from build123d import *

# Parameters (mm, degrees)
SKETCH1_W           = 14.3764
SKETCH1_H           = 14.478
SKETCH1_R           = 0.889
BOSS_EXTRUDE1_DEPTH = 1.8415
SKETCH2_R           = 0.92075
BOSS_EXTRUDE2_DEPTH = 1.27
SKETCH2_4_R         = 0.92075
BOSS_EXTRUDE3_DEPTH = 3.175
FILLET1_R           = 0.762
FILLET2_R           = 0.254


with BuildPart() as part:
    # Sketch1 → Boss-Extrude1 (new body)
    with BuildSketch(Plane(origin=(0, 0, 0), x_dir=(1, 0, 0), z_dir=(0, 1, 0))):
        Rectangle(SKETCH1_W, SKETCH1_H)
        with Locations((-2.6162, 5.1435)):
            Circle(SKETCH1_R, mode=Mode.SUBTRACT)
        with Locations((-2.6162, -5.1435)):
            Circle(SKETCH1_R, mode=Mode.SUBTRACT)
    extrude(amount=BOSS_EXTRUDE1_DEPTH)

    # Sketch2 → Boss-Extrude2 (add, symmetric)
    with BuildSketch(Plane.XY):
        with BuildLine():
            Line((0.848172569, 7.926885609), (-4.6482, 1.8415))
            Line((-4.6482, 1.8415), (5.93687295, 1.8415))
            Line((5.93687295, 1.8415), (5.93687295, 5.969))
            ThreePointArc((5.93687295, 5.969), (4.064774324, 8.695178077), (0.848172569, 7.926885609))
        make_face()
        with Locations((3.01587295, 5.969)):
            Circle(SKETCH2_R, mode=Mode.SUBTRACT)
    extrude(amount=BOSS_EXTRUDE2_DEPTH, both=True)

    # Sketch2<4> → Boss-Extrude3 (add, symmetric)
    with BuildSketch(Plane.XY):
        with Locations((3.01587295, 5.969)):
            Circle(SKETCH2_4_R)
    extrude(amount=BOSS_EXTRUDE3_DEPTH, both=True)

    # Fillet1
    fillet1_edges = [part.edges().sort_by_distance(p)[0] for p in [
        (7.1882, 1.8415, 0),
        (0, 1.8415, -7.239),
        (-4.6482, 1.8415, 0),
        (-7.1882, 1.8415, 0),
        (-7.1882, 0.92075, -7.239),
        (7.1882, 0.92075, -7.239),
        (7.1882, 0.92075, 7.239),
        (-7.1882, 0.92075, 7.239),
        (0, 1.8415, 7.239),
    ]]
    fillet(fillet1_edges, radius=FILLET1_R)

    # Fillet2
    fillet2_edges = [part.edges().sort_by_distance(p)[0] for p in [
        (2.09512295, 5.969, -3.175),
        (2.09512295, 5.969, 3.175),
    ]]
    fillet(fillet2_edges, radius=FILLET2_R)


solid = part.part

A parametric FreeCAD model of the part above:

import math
import FreeCAD as App
import Part
import Sketcher

V = App.Vector
Q = App.Units.Quantity


def edges_at(feature, points):
    """Names of the edges that pass closest to the given points."""
    edges = feature.Shape.Edges
    near = lambda p: min(range(len(edges)), key=lambda i: edges[i].distToShape(Part.Vertex(*p))[0])
    return sorted({f"Edge{near(p) + 1}" for p in points})


def add_polygon(sketch, points):
    """Adds a closed chain of lines whose ends are joined by coincident constraints."""
    first, n = sketch.GeometryCount, len(points)
    for a, b in zip(points, points[1:] + points[:1]):
        sketch.addGeometry(Part.LineSegment(App.Vector(*a, 0), App.Vector(*b, 0)), False)
    for i in range(n):
        sketch.addConstraint(Sketcher.Constraint("Coincident", first + i, 2, first + (i + 1) % n, 1))

doc = App.newDocument("Part")
params = doc.addObject("Spreadsheet::Sheet", "Params")
for row, (alias, value) in enumerate([
    ("sketch1_diameter", "0.07 in"),
    ("sketch1_height", "0.57 in"),
    ("sketch1_width", "0.566 in"),
    ("pad1_length", "0.0725 in"),
    ("sketch2_radius", "0.115 in"),
    ("pad2_length", "0.1 in"),
    ("pad3_length", "0.25 in"),
    ("fillet_radius", "0.03 in"),
    ("fillet2_radius", "0.01 in"),
], start=1):
    params.set(f"A{row}", alias)
    params.set(f"B{row}", "=" + value)
    params.setAlias(f"B{row}", alias)

body = doc.addObject("PartDesign::Body", "Body")

# Sketch on XZ plane
sketch1 = doc.addObject("Sketcher::SketchObject", "Sketch")
body.addObject(sketch1)
sketch1.AttachmentSupport = (doc.XZ_Plane, [""])
sketch1.MapMode = "FlatFace"
add_polygon(sketch1, [(-7.2, -7.2), (-7.2, 7.2), (7.2, 7.2), (7.2, -7.2)])  # lines 0-3
sketch1.addGeometry(Part.Circle(V(-2.6, 5.1, 0), V(0, 0, 1), 0.9), False)  # 4
sketch1.addGeometry(Part.Circle(V(-2.6, -5.1, 0), V(0, 0, 1), 0.9), False)  # 5
sketch1.addConstraint([
    Sketcher.Constraint("Vertical", 0),
    Sketcher.Constraint("Horizontal", 1),
    Sketcher.Constraint("Vertical", 2),
    Sketcher.Constraint("Horizontal", 3),
    Sketcher.Constraint("Equal", 4, 5),
    Sketcher.Constraint("Symmetric", 0, 2, 2, 2, -1, 1),
    Sketcher.Constraint("Symmetric", 4, 3, 5, 3, -1),
    Sketcher.Constraint("Diameter", 4, Q("0.07 in")),
    Sketcher.Constraint("DistanceY", 0, 1, 0, 2, Q("0.57 in")),
    Sketcher.Constraint("DistanceX", 1, 1, 1, 2, Q("0.566 in")),
    Sketcher.Constraint("DistanceX", 0, 2, 4, 3, Q("0.18 in")),
    Sketcher.Constraint("DistanceY", 5, 3, 4, 3, Q("0.405 in")),
])
sketch1.setExpression("Constraints[11]", "Params.sketch1_diameter")
sketch1.setExpression("Constraints[12]", "Params.sketch1_height")
sketch1.setExpression("Constraints[13]", "Params.sketch1_width")
pad1 = doc.addObject("PartDesign::Pad", "Pad")
body.addObject(pad1)
pad1.Profile = sketch1
pad1.setExpression("Length", "Params.pad1_length")
pad1.Reversed = True

# Sketch on XY plane
sketch2 = doc.addObject("Sketcher::SketchObject", "Sketch001")
body.addObject(sketch2)
sketch2.AttachmentSupport = (doc.XY_Plane, [""])
sketch2.MapMode = "FlatFace"
sketch2.addGeometry([
    Part.LineSegment(V(0.8, 7.9, 0), V(-4.6, 1.8, 0)),  # 0
    Part.LineSegment(V(-4.6, 1.8, 0), V(5.9, 1.8, 0)),  # 1
    Part.LineSegment(V(5.9, 1.8, 0), V(5.9, 6, 0)),  # 2
    Part.ArcOfCircle(Part.Circle(V(3, 6, 0), V(0, 0, 1), 2.9), math.radians(0), math.radians(138)),  # 3
    Part.Circle(V(3, 6, 0), V(0, 0, 1), 0.9),  # 4
], False)
sketch2.addConstraint([
    Sketcher.Constraint("Coincident", 0, 2, 1, 1),
    Sketcher.Constraint("Coincident", 1, 2, 2, 1),
    Sketcher.Constraint("Tangent", 2, 2, 3, 1),
    Sketcher.Constraint("Tangent", 3, 2, 0, 1),
    Sketcher.Constraint("Horizontal", 1),
    Sketcher.Constraint("Vertical", 2),
    Sketcher.Constraint("Coincident", 4, 3, 3, 3),
    Sketcher.Constraint("Radius", 3, Q("0.115 in")),
    Sketcher.Constraint("Diameter", 4, Q("0.0725 in")),
    Sketcher.Constraint("DistanceY", 2, 1, 2, 2, Q("0.1625 in")),
    Sketcher.Constraint("DistanceY", -1, 1, 3, 3, Q("0.235 in")),
    Sketcher.Constraint("DistanceX", 0, 2, -1, 1, Q("0.183 in")),
    Sketcher.Constraint("DistanceX", 3, 2, 3, 3, Q("2.1677 mm")),
])
sketch2.setExpression("Constraints[7]", "Params.sketch2_radius")
pad2 = doc.addObject("PartDesign::Pad", "Pad001")
body.addObject(pad2)
pad2.Profile = sketch2
pad2.setExpression("Length", "Params.pad2_length")
pad2.Midplane = True

# Sketch on XY plane
sketch3 = doc.addObject("Sketcher::SketchObject", "Sketch002")
body.addObject(sketch3)
sketch3.AttachmentSupport = (doc.XY_Plane, [""])
sketch3.MapMode = "FlatFace"
sketch3.addGeometry(Part.Circle(V(3, 6, 0), V(0, 0, 1), 0.9), False)
sketch3.addConstraint([
    Sketcher.Constraint("Diameter", 0, Q("0.0725 in")),
    Sketcher.Constraint("DistanceY", -1, 1, 0, 3, Q("0.235 in")),
    Sketcher.Constraint("DistanceX", -1, 1, 0, 3, Q("3.015873 mm")),
])
pad3 = doc.addObject("PartDesign::Pad", "Pad002")
body.addObject(pad3)
pad3.Profile = sketch3
pad3.setExpression("Length", "Params.pad3_length")
pad3.Midplane = True
doc.recompute()

fillet = doc.addObject("PartDesign::Fillet", "Fillet")
body.addObject(fillet)
fillet.Base = (pad3, edges_at(pad3, [
    (7.188, 1.841, 0),
    (0, 1.841, -7.239),
    (-4.648, 1.841, 0),
    (-7.188, 1.841, 0),
    (-7.188, 0.921, -7.239),
    (7.188, 0.921, -7.239),
    (7.188, 0.921, 7.239),
    (-7.188, 0.921, 7.239),
    (0, 1.841, 7.239),
]))
fillet.setExpression("Radius", "Params.fillet_radius")
doc.recompute()

fillet2 = doc.addObject("PartDesign::Fillet", "Fillet001")
body.addObject(fillet2)
fillet2.Base = (fillet, edges_at(fillet, [(2.095, 5.969, -3.175), (2.095, 5.969, 3.175)]))
fillet2.setExpression("Radius", "Params.fillet2_radius")

doc.recompute()
